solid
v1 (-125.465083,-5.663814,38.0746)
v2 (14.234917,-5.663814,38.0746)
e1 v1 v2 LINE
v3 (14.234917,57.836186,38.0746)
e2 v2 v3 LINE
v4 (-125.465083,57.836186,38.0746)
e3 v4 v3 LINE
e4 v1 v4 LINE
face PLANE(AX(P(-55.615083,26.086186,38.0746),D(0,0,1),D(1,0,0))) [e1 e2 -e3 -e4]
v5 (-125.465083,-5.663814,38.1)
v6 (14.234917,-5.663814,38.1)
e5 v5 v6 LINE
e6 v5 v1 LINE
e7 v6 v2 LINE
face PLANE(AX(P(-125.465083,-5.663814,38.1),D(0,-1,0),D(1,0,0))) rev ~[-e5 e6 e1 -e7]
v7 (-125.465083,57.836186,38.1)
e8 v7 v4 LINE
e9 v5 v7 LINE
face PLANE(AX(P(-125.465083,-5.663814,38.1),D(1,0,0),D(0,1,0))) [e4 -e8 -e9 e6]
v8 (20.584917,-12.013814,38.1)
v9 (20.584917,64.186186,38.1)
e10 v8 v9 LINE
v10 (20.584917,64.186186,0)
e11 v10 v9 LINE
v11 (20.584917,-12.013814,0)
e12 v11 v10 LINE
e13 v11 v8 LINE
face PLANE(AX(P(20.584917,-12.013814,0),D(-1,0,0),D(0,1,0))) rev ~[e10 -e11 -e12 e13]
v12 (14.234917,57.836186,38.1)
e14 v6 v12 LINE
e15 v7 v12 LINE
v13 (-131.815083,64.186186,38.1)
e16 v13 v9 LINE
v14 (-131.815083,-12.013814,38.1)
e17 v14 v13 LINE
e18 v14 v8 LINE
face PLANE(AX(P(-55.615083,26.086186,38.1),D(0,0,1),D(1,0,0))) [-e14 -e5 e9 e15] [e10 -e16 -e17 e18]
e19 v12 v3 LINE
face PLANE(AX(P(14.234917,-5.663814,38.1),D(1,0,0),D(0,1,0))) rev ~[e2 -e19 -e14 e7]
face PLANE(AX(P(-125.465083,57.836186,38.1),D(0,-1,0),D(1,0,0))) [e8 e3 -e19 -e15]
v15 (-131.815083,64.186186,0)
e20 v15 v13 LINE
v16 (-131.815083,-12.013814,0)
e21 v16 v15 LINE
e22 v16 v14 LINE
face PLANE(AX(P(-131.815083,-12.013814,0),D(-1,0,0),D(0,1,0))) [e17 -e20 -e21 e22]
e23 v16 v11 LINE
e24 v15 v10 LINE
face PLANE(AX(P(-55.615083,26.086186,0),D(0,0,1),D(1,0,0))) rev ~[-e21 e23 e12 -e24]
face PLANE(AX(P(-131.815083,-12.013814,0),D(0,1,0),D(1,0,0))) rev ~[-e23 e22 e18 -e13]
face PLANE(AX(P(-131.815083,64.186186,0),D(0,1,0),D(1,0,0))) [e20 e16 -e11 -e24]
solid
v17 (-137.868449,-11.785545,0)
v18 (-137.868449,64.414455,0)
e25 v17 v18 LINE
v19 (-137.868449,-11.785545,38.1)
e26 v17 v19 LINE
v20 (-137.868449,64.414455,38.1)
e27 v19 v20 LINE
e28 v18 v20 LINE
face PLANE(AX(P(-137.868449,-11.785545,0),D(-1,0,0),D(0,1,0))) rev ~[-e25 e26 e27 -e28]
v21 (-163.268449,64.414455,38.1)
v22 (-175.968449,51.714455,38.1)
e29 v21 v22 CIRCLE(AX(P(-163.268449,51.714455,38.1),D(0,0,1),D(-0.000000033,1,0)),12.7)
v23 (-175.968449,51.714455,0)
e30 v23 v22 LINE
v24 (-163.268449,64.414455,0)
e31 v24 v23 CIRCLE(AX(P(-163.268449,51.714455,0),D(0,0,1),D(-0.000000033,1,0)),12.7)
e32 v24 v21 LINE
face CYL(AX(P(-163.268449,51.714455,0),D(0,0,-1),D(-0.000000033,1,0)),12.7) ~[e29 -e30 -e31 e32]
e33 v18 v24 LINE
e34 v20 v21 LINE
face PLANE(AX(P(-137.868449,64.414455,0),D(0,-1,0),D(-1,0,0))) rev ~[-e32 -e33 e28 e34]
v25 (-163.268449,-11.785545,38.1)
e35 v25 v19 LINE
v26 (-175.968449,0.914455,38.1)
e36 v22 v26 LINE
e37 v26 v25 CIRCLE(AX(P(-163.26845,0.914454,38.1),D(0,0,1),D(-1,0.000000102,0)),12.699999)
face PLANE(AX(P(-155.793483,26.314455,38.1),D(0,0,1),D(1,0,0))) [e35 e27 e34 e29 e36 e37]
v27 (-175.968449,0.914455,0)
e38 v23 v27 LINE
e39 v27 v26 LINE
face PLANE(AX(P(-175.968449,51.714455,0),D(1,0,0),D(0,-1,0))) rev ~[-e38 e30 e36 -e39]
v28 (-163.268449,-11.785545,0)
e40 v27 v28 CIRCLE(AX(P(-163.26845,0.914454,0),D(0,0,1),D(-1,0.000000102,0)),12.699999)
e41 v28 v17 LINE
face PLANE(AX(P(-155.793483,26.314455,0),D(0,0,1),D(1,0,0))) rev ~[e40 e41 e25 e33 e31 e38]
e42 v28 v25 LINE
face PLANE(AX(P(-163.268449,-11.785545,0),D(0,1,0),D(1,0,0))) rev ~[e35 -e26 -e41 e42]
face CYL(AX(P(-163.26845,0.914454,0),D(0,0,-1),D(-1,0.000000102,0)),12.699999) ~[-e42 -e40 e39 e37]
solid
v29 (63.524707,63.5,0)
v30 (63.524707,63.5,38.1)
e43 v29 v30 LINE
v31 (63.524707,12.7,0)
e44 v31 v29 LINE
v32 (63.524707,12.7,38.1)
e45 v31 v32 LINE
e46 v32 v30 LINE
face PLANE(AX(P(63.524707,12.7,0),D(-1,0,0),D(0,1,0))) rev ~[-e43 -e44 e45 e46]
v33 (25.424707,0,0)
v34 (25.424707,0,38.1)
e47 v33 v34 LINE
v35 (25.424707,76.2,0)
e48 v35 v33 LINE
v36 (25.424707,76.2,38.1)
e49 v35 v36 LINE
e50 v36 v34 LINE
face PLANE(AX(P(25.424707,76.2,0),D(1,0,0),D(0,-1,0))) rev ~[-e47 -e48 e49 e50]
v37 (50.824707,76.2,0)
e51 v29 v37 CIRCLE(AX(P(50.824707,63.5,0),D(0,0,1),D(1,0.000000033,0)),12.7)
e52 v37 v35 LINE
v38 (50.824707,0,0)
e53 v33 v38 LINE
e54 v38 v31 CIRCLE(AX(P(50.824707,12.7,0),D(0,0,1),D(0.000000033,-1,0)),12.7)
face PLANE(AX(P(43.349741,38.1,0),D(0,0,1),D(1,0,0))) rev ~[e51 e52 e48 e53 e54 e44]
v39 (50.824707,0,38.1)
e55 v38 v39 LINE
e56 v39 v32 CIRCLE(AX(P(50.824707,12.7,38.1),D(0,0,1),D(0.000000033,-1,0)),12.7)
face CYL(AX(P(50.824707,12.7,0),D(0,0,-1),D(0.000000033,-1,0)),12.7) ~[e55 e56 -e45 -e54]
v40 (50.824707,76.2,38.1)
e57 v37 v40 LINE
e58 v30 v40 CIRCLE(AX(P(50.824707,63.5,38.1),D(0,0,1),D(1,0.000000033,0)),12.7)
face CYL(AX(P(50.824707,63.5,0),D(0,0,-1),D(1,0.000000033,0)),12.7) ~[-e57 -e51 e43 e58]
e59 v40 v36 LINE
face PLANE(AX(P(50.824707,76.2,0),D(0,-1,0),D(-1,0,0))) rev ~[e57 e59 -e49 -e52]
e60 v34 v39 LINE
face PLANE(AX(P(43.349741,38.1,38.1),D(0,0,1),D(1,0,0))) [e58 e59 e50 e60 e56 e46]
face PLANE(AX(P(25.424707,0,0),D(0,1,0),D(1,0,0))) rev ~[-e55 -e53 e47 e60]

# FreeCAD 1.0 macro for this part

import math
import FreeCAD as App
import Part
import Sketcher

V = App.Vector
Q = App.Units.Quantity


def add_polygon(sketch, points):
    """Adds a closed chain of lines whose ends are joined by coincident constraints."""
    first, n = sketch.GeometryCount, len(points)
    for a, b in zip(points, points[1:] + points[:1]):
        sketch.addGeometry(Part.LineSegment(App.Vector(*a, 0), App.Vector(*b, 0)), False)
    for i in range(n):
        sketch.addConstraint(Sketcher.Constraint("Coincident", first + i, 2, first + (i + 1) % n, 1))

doc = App.newDocument("Part")
body = doc.addObject("PartDesign::Body", "Body")

sketch1 = doc.addObject("Sketcher::SketchObject", "Sketch")
body.addObject(sketch1)
sketch1.AttachmentSupport = (doc.XY_Plane, [""])
sketch1.MapMode = "FlatFace"
add_polygon(sketch1, [(-132, 64), (-132, -12), (21, -12), (21, 64)])
sketch1.addConstraint([
    Sketcher.Constraint("Vertical", 0),
    Sketcher.Constraint("Horizontal", 1),
    Sketcher.Constraint("Vertical", 2),
    Sketcher.Constraint("Horizontal", 3),
    Sketcher.Constraint("DistanceX", 1, 1, 1, 2, Q("6 in")),
    Sketcher.Constraint("DistanceY", 0, 2, 0, 1, Q("3 in")),
    Sketcher.Constraint("DistanceX", 0, 2, -1, 1, 131.815083),
    Sketcher.Constraint("DistanceY", 0, 2, -1, 1, 12.013814),
])
pad1 = doc.addObject("PartDesign::Pad", "Pad")
body.addObject(pad1)
pad1.Profile = sketch1
pad1.Length = Q("1.5 in")

sketch2 = doc.addObject("Sketcher::SketchObject", "Sketch001")
body.addObject(sketch2)
sketch2.AttachmentSupport = (doc.XY_Plane, [""])
sketch2.MapMode = "FlatFace"
sketch2.AttachmentOffset = App.Placement(V(0, 0, 1.5 * 25.4), App.Rotation())
add_polygon(sketch2, [(-125, 58), (-125, -6), (14, -6), (14, 58)])
sketch2.addConstraint([
    Sketcher.Constraint("Vertical", 0),
    Sketcher.Constraint("Horizontal", 1),
    Sketcher.Constraint("Vertical", 2),
    Sketcher.Constraint("Horizontal", 3),
    Sketcher.Constraint("DistanceX", 1, 1, 1, 2, Q("5.5 in")),
    Sketcher.Constraint("DistanceY", 0, 2, 0, 1, Q("2.5 in")),
    Sketcher.Constraint("DistanceX", 0, 2, -1, 1, 125.465083),
    Sketcher.Constraint("DistanceY", 0, 2, -1, 1, 5.663814),
])
pocket1 = doc.addObject("PartDesign::Pocket", "Pocket")
body.addObject(pocket1)
pocket1.Profile = sketch2
pocket1.Length = Q("0.001 in")
body2 = doc.addObject("PartDesign::Body", "Body001")
body2.AllowCompound = True

sketch3 = doc.addObject("Sketcher::SketchObject", "Sketch002")
body2.addObject(sketch3)
sketch3.AttachmentSupport = (doc.getObject("XY_Plane001"), [""])
sketch3.MapMode = "FlatFace"
sketch3.addGeometry([
    Part.LineSegment(V(-138, 64, 0), V(-163, 64, 0)),
    Part.ArcOfCircle(Part.Circle(V(-163, 52, 0), V(0, 0, 1), 13), math.radians(90), math.radians(180)),
    Part.LineSegment(V(-176, 52, 0), V(-176, 1, 0)),
    Part.ArcOfCircle(Part.Circle(V(-163, 1, 0), V(0, 0, 1), 13), math.radians(180), math.radians(270)),
    Part.LineSegment(V(-163, -12, 0), V(-138, -12, 0)),
    Part.LineSegment(V(-138, -12, 0), V(-138, 64, 0)),
    Part.LineSegment(V(51, 76, 0), V(25, 76, 0)),
    Part.LineSegment(V(25, 76, 0), V(25, 0, 0)),
    Part.LineSegment(V(25, 0, 0), V(51, 0, 0)),
    Part.ArcOfCircle(Part.Circle(V(51, 13, 0), V(0, 0, 1), 13), math.radians(-90), math.radians(0)),
    Part.LineSegment(V(64, 13, 0), V(64, 64, 0)),
    Part.ArcOfCircle(Part.Circle(V(51, 63, 0), V(0, 0, 1), 13), math.radians(0), math.radians(90)),
], False)
sketch3.addConstraint([
    Sketcher.Constraint("Tangent", 0, 2, 1, 1),
    Sketcher.Constraint("Tangent", 1, 2, 2, 1),
    Sketcher.Constraint("Tangent", 2, 2, 3, 1),
    Sketcher.Constraint("Tangent", 3, 2, 4, 1),
    Sketcher.Constraint("Coincident", 4, 2, 5, 1),
    Sketcher.Constraint("Coincident", 5, 2, 0, 1),
    Sketcher.Constraint("Coincident", 6, 2, 7, 1),
    Sketcher.Constraint("Coincident", 7, 2, 8, 1),
    Sketcher.Constraint("Tangent", 8, 2, 9, 1),
    Sketcher.Constraint("Tangent", 9, 2, 10, 1),
    Sketcher.Constraint("Tangent", 10, 2, 11, 1),
    Sketcher.Constraint("Tangent", 11, 2, 6, 1),
    Sketcher.Constraint("Horizontal", 0),
    Sketcher.Constraint("Vertical", 2),
    Sketcher.Constraint("Horizontal", 4),
    Sketcher.Constraint("Vertical", 5),
    Sketcher.Constraint("Horizontal", 6),
    Sketcher.Constraint("Vertical", 7),
    Sketcher.Constraint("Horizontal", 8),
    Sketcher.Constraint("Vertical", 10),
    Sketcher.Constraint("Equal", 1, 3),
    Sketcher.Constraint("Equal", 3, 9),
    Sketcher.Constraint("Equal", 9, 11),
    Sketcher.Constraint("PointOnObject", 7, 2, -1),
    Sketcher.Constraint("Equal", 4, 6),
    Sketcher.Constraint("Equal", 5, 7),
    Sketcher.Constraint("Radius", 1, Q("0.5 in")),
    Sketcher.Constraint("DistanceX", 0, 2, 0, 1, Q("1 in")),
    Sketcher.Constraint("DistanceY", 2, 2, 2, 1, Q("2 in")),
    Sketcher.Constraint("DistanceX", 1, 3, -1, 1, 163.268449),
    Sketcher.Constraint("DistanceY", -1, 1, 1, 3, 51.714455),
    Sketcher.Constraint("DistanceX", -1, 1, 9, 3, 50.824707),
])
pad2 = doc.addObject("PartDesign::Pad", "Pad001")
body2.addObject(pad2)
pad2.Profile = sketch3
pad2.Length = Q("1.5 in")

doc.recompute()
